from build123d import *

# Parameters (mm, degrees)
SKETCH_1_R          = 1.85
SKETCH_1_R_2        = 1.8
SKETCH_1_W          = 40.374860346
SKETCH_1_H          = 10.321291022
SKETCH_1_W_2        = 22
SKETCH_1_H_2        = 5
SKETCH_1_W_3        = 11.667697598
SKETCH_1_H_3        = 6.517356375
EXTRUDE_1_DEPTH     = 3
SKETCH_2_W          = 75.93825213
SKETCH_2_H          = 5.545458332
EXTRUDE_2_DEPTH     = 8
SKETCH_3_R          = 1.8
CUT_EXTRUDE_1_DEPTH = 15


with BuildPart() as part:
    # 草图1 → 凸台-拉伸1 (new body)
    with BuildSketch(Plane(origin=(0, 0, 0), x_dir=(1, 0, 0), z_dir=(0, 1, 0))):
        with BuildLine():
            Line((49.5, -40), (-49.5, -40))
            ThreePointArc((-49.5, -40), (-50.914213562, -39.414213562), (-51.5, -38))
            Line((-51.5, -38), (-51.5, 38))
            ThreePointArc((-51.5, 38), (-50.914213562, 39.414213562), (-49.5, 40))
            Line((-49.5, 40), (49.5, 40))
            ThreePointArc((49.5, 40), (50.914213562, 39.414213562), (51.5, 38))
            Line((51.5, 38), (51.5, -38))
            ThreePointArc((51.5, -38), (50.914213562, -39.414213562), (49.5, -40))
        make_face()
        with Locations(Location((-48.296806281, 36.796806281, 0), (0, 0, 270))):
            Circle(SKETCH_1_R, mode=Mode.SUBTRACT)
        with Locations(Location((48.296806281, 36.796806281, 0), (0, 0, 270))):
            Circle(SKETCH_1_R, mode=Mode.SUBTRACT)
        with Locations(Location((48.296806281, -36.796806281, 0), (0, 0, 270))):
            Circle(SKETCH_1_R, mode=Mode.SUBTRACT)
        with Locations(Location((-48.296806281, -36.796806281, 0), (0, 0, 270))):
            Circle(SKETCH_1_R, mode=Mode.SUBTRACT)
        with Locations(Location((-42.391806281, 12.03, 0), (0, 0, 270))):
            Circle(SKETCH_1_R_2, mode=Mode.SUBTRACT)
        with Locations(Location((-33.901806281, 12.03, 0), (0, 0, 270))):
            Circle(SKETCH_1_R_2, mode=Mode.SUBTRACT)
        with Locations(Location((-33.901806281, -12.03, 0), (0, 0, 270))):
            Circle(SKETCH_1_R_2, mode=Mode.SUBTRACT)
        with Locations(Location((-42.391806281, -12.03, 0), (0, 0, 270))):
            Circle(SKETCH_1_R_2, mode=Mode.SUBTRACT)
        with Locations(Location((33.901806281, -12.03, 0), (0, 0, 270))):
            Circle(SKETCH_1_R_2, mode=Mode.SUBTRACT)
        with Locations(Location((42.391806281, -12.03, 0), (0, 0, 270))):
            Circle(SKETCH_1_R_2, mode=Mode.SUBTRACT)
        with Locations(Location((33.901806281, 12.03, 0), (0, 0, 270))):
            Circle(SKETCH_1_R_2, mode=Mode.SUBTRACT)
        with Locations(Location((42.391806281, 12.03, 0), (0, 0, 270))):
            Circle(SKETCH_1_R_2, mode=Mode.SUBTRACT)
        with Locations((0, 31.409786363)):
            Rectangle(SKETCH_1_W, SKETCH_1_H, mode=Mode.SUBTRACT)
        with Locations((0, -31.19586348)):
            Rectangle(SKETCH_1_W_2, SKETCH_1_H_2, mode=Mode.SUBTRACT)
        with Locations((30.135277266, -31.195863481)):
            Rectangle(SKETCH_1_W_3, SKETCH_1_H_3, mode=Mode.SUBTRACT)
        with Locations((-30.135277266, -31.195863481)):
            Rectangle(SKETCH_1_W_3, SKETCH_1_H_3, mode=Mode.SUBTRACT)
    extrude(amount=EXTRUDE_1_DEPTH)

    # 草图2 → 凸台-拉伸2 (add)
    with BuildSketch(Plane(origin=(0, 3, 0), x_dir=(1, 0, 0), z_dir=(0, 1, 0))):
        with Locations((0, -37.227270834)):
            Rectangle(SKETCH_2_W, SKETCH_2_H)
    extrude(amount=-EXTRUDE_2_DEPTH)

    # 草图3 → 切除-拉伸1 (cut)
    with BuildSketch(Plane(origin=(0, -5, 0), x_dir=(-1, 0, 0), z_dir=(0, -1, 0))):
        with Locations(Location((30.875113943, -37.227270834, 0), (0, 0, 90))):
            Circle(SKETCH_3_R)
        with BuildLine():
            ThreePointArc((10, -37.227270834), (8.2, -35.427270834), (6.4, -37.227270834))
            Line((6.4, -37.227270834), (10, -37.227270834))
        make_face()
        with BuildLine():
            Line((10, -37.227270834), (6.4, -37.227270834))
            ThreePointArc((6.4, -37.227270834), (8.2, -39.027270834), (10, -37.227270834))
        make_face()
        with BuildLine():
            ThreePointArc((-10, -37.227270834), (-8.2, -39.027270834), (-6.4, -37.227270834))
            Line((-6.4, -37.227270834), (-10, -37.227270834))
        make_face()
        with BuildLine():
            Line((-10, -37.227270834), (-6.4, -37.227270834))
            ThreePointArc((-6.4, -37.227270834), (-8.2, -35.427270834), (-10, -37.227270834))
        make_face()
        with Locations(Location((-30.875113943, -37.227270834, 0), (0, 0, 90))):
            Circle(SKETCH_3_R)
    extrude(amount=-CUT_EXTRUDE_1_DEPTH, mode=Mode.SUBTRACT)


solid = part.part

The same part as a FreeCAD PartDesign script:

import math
import FreeCAD as App
import Part
import Sketcher
from FreeCAD import Vector
Q = App.Units.Quantity

doc = App.newDocument("Part")
body = doc.addObject("PartDesign::Body", "Body")

sketch1 = doc.addObject("Sketcher::SketchObject", "Sketch")
body.addObject(sketch1)
sketch1.AttachmentSupport = (doc.XZ_Plane, [""])
sketch1.MapMode = "FlatFace"
sketch1.addGeometry([
    Part.LineSegment(Vector(-49.5, 40, 0), Vector(49.5, 40, 0)),
    Part.ArcOfCircle(Part.Circle(Vector(49.5, 38, 0), Vector(0, 0, 1), 2), math.radians(0), math.radians(90)),
    Part.LineSegment(Vector(51.5, 38, 0), Vector(51.5, -38, 0)),
    Part.ArcOfCircle(Part.Circle(Vector(49.5, -38, 0), Vector(0, 0, 1), 2), math.radians(-90), math.radians(0)),
    Part.LineSegment(Vector(49.5, -40, 0), Vector(-49.5, -40, 0)),
    Part.ArcOfCircle(Part.Circle(Vector(-49.5, -38, 0), Vector(0, 0, 1), 2), math.radians(-180), math.radians(-90)),
    Part.LineSegment(Vector(-51.5, -38, 0), Vector(-51.5, 38, 0)),
    Part.ArcOfCircle(Part.Circle(Vector(-49.5, 38, 0), Vector(0, 0, 1), 2), math.radians(90), math.radians(180)),
    Part.Circle(Vector(48.3, 36.8, 0), Vector(0, 0, 1), 1.9),
    Part.LineSegment(Vector(24.3, 34.5, 0), Vector(24.3, 27.9, 0)),
    Part.LineSegment(Vector(24.3, 27.9, 0), Vector(36, 27.9, 0)),
    Part.LineSegment(Vector(36, 27.9, 0), Vector(36, 34.5, 0)),
    Part.LineSegment(Vector(36, 34.5, 0), Vector(24.3, 34.5, 0)),
    Part.Circle(Vector(42.4, 12, 0), Vector(0, 0, 1), 1.8),
    Part.Circle(Vector(33.9, 12, 0), Vector(0, 0, 1), 1.8),
    Part.LineSegment(Vector(-11, 33.7, 0), Vector(-11, 28.7, 0)),
    Part.LineSegment(Vector(-11, 28.7, 0), Vector(11, 28.7, 0)),
    Part.LineSegment(Vector(11, 28.7, 0), Vector(11, 33.7, 0)),
    Part.LineSegment(Vector(11, 33.7, 0), Vector(-11, 33.7, 0)),
    Part.LineSegment(Vector(-36, 34.5, 0), Vector(-36, 27.9, 0)),
    Part.LineSegment(Vector(-36, 27.9, 0), Vector(-24.3, 27.9, 0)),
    Part.LineSegment(Vector(-24.3, 27.9, 0), Vector(-24.3, 34.5, 0)),
    Part.LineSegment(Vector(-24.3, 34.5, 0), Vector(-36, 34.5, 0)),
    Part.Circle(Vector(-48.3, 36.8, 0), Vector(0, 0, 1), 1.9),
    Part.Circle(Vector(-33.9, 12, 0), Vector(0, 0, 1), 1.8),
    Part.Circle(Vector(-42.4, 12, 0), Vector(0, 0, 1), 1.8),
    Part.Circle(Vector(42.4, -12, 0), Vector(0, 0, 1), 1.8),
    Part.Circle(Vector(33.9, -12, 0), Vector(0, 0, 1), 1.8),
    Part.Circle(Vector(48.3, -36.8, 0), Vector(0, 0, 1), 1.9),
    Part.Circle(Vector(-33.9, -12, 0), Vector(0, 0, 1), 1.8),
    Part.Circle(Vector(-42.4, -12, 0), Vector(0, 0, 1), 1.8),
    Part.LineSegment(Vector(-20.2, -26.2, 0), Vector(-20.2, -36.6, 0)),
    Part.LineSegment(Vector(-20.2, -36.6, 0), Vector(20.2, -36.6, 0)),
    Part.LineSegment(Vector(20.2, -36.6, 0), Vector(20.2, -26.2, 0)),
    Part.LineSegment(Vector(20.2, -26.2, 0), Vector(-20.2, -26.2, 0)),
    Part.Circle(Vector(-48.3, -36.8, 0), Vector(0, 0, 1), 1.9),
], False)
sketch1.addConstraint([
    Sketcher.Constraint("Tangent", 0, 2, 1, 2),
    Sketcher.Constraint("Tangent", 1, 1, 2, 1),
    Sketcher.Constraint("Tangent", 2, 2, 3, 2),
    Sketcher.Constraint("Tangent", 3, 1, 4, 1),
    Sketcher.Constraint("Tangent", 4, 2, 5, 2),
    Sketcher.Constraint("Tangent", 5, 1, 6, 1),
    Sketcher.Constraint("Tangent", 6, 2, 7, 2),
    Sketcher.Constraint("Tangent", 7, 1, 0, 1),
    Sketcher.Constraint("Coincident", 9, 2, 10, 1),
    Sketcher.Constraint("Coincident", 10, 2, 11, 1),
    Sketcher.Constraint("Coincident", 11, 2, 12, 1),
    Sketcher.Constraint("Coincident", 12, 2, 9, 1),
    Sketcher.Constraint("Coincident", 15, 2, 16, 1),
    Sketcher.Constraint("Coincident", 16, 2, 17, 1),
    Sketcher.Constraint("Coincident", 17, 2, 18, 1),
    Sketcher.Constraint("Coincident", 18, 2, 15, 1),
    Sketcher.Constraint("Coincident", 19, 2, 20, 1),
    Sketcher.Constraint("Coincident", 20, 2, 21, 1),
    Sketcher.Constraint("Coincident", 21, 2, 22, 1),
    Sketcher.Constraint("Coincident", 22, 2, 19, 1),
    Sketcher.Constraint("Coincident", 31, 2, 32, 1),
    Sketcher.Constraint("Coincident", 32, 2, 33, 1),
    Sketcher.Constraint("Coincident", 33, 2, 34, 1),
    Sketcher.Constraint("Coincident", 34, 2, 31, 1),
    Sketcher.Constraint("Horizontal", 0),
    Sketcher.Constraint("Vertical", 2),
    Sketcher.Constraint("Horizontal", 4),
    Sketcher.Constraint("Vertical", 6),
    Sketcher.Constraint("Vertical", 9),
    Sketcher.Constraint("Horizontal", 10),
    Sketcher.Constraint("Vertical", 11),
    Sketcher.Constraint("Horizontal", 12),
    Sketcher.Constraint("Vertical", 15),
    Sketcher.Constraint("Horizontal", 16),
    Sketcher.Constraint("Vertical", 17),
    Sketcher.Constraint("Horizontal", 18),
    Sketcher.Constraint("Vertical", 19),
    Sketcher.Constraint("Horizontal", 20),
    Sketcher.Constraint("Vertical", 21),
    Sketcher.Constraint("Horizontal", 22),
    Sketcher.Constraint("Vertical", 31),
    Sketcher.Constraint("Horizontal", 32),
    Sketcher.Constraint("Vertical", 33),
    Sketcher.Constraint("Horizontal", 34),
    Sketcher.Constraint("Equal", 1, 3),
    Sketcher.Constraint("Equal", 3, 5),
    Sketcher.Constraint("Equal", 5, 7),
    Sketcher.Constraint("Equal", 13, 14),
    Sketcher.Constraint("Equal", 8, 23),
    Sketcher.Constraint("Equal", 14, 24),
    Sketcher.Constraint("Equal", 24, 25),
    Sketcher.Constraint("Equal", 25, 26),
    Sketcher.Constraint("Equal", 26, 27),
    Sketcher.Constraint("Equal", 23, 28),
    Sketcher.Constraint("Equal", 27, 29),
    Sketcher.Constraint("Equal", 29, 30),
    Sketcher.Constraint("Equal", 28, 35),
    Sketcher.Constraint("Symmetric", 1, 3, 5, 3, -1, 1),
    Sketcher.Constraint("Symmetric", 25, 3, 26, 3, -1, 1),
    Sketcher.Constraint("Symmetric", 24, 3, 27, 3, -1, 1),
    Sketcher.Constraint("Symmetric", 23, 3, 28, 3, -1, 1),
    Sketcher.Constraint("Symmetric", 14, 3, 29, 3, -1, 1),
    Sketcher.Constraint("Symmetric", 13, 3, 30, 3, -1, 1),
    Sketcher.Constraint("Symmetric", 8, 3, 35, 3, -1, 1),
    Sketcher.Constraint("Symmetric", 8, 3, 23, 3, -2),
    Sketcher.Constraint("Symmetric", 14, 3, 24, 3, -2),
    Sketcher.Constraint("Symmetric", 13, 3, 25, 3, -2),
    Sketcher.Constraint("Symmetric", 10, 2, 19, 2, -2),
    Sketcher.Constraint("Symmetric", 12, 2, 21, 2, -2),
    Sketcher.Constraint("Horizontal", 13, 3, 14, 3),
    Sketcher.Constraint("Radius", 1, Q("2 mm")),
    Sketcher.Constraint("Diameter", 8, Q("3.7 mm")),
    Sketcher.Constraint("Diameter", 13, Q("3.6 mm")),
    Sketcher.Constraint("DistanceX", 0, 1, 0, 2, Q("99 mm")),
    Sketcher.Constraint("DistanceX", 16, 1, 16, 2, Q("22 mm")),
    Sketcher.Constraint("DistanceY", 2, 2, 2, 1, Q("76 mm")),
    Sketcher.Constraint("DistanceY", 15, 2, 15, 1, Q("5 mm")),
    Sketcher.Constraint("DistanceX", 15, 2, -1, 1, Q("11 mm")),
    Sketcher.Constraint("DistanceY", -1, 1, 13, 3, Q("12.03 mm")),
    Sketcher.Constraint("DistanceX", 14, 3, 13, 3, Q("8.49 mm")),
    Sketcher.Constraint("DistanceX", 13, 3, 8, 3, Q("5.905 mm")),
    Sketcher.Constraint("DistanceX", 32, 1, 32, 2, Q("40.37486 mm")),
    Sketcher.Constraint("DistanceY", 31, 2, 31, 1, Q("10.321291 mm")),
    Sketcher.Constraint("DistanceX", 10, 1, 10, 2, Q("11.667698 mm")),
    Sketcher.Constraint("DistanceY", 9, 2, 9, 1, Q("6.517356 mm")),
    Sketcher.Constraint("DistanceX", -1, 1, 9, 2, Q("24.301428 mm")),
    Sketcher.Constraint("DistanceY", -1, 1, 11, 2, Q("34.454542 mm")),
    Sketcher.Constraint("DistanceX", 31, 2, -1, 1, Q("20.18743 mm")),
    Sketcher.Constraint("DistanceY", 31, 2, -1, 1, Q("36.570432 mm")),
    Sketcher.Constraint("DistanceY", 9, 2, 8, 3, Q("8.859621 mm")),
    Sketcher.Constraint("DistanceX", 10, 2, 8, 3, Q("12.32768 mm")),
    Sketcher.Constraint("DistanceY", 9, 2, 15, 2, Q("0.758678 mm")),
])
pad1 = doc.addObject("PartDesign::Pad", "Pad")
body.addObject(pad1)
pad1.Profile = sketch1
pad1.Length = 3
pad1.Reversed = True

sketch2 = doc.addObject("Sketcher::SketchObject", "Sketch001")
body.addObject(sketch2)
sketch2.AttachmentSupport = (doc.XZ_Plane, [""])
sketch2.MapMode = "FlatFace"
sketch2.AttachmentOffset = App.Placement(Vector(0, 0, -3), App.Rotation())
sketch2.addGeometry([
    Part.LineSegment(Vector(-38, 34, 0), Vector(-38, 40, 0)),
    Part.LineSegment(Vector(-38, 40, 0), Vector(38, 40, 0)),
    Part.LineSegment(Vector(38, 40, 0), Vector(38, 34, 0)),
    Part.LineSegment(Vector(38, 34, 0), Vector(-38, 34, 0)),
], False)
sketch2.addConstraint([
    Sketcher.Constraint("Coincident", 0, 2, 1, 1),
    Sketcher.Constraint("Coincident", 1, 2, 2, 1),
    Sketcher.Constraint("Coincident", 2, 2, 3, 1),
    Sketcher.Constraint("Coincident", 3, 2, 0, 1),
    Sketcher.Constraint("Vertical", 0),
    Sketcher.Constraint("Horizontal", 1),
    Sketcher.Constraint("Vertical", 2),
    Sketcher.Constraint("Horizontal", 3),
    Sketcher.Constraint("DistanceY", -1, 1, 0, 2, Q("40 mm")),
    Sketcher.Constraint("DistanceY", 0, 1, 0, 2, Q("5.545458 mm")),
    Sketcher.Constraint("DistanceX", 1, 1, 1, 2, Q("75.938252 mm")),
    Sketcher.Constraint("DistanceX", 0, 2, -1, 1, Q("37.969126 mm")),
])
pad2 = doc.addObject("PartDesign::Pad", "Pad001")
body.addObject(pad2)
pad2.Profile = sketch2
pad2.Length = 8

sketch3 = doc.addObject("Sketcher::SketchObject", "Sketch002")
body.addObject(sketch3)
sketch3.AttachmentSupport = (doc.XZ_Plane, [""])
sketch3.MapMode = "FlatFace"
sketch3.AttachmentOffset = App.Placement(Vector(0, 0, 5), App.Rotation())
sketch3.addGeometry([
    Part.Circle(Vector(-30.9, 37.2, 0), Vector(0, 0, 1), 1.8),
    Part.Circle(Vector(-8.2, 37.2, 0), Vector(0, 0, 1), 1.8),
    Part.Circle(Vector(8.2, 37.2, 0), Vector(0, 0, 1), 1.8),
    Part.Circle(Vector(30.9, 37.2, 0), Vector(0, 0, 1), 1.8),
], False)
sketch3.addConstraint([
    Sketcher.Constraint("Equal", 0, 1),
    Sketcher.Constraint("Equal", 1, 2),
    Sketcher.Constraint("Equal", 2, 3),
    Sketcher.Constraint("Symmetric", 1, 3, 2, 3, -2),
    Sketcher.Constraint("Symmetric", 0, 3, 3, 3, -2),
    Sketcher.Constraint("Horizontal", 0, 3, 1, 3),
    Sketcher.Constraint("Diameter", 0, Q("3.6 mm")),
    Sketcher.Constraint("DistanceX", 1, 3, -1, 1, Q("8.2 mm")),
    Sketcher.Constraint("DistanceY", -1, 1, 0, 3, Q("37.227271 mm")),
    Sketcher.Constraint("DistanceX", 0, 3, -1, 1, Q("30.875114 mm")),
])
pocket1 = doc.addObject("PartDesign::Pocket", "Pocket")
body.addObject(pocket1)
pocket1.Profile = sketch3
pocket1.Length = 15

doc.recompute()
